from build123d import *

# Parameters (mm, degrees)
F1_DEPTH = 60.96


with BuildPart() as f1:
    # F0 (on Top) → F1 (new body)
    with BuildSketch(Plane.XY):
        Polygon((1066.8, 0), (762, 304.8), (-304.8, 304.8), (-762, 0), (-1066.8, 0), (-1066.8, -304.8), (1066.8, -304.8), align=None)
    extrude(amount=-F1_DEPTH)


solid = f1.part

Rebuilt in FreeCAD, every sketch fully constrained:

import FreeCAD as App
import Part
import Sketcher
from FreeCAD import Vector
Q = App.Units.Quantity

doc = App.newDocument("Part")
body = doc.addObject("PartDesign::Body", "Body")

# Sketch on XY plane
sketch1 = body.newObject("Sketcher::SketchObject", "Sketch")
sketch1.AttachmentSupport = (doc.getObject("XY_Plane"), [""])
sketch1.MapMode = "FlatFace"
sketch1.addGeometry(Part.LineSegment(Vector(1067, 0, 0), Vector(762, 305, 0)), False)
sketch1.addGeometry(Part.LineSegment(Vector(762, 305, 0), Vector(-305, 305, 0)), False)
sketch1.addGeometry(Part.LineSegment(Vector(-305, 305, 0), Vector(-762, 0, 0)), False)
sketch1.addGeometry(Part.LineSegment(Vector(-762, 0, 0), Vector(-1067, 0, 0)), False)
sketch1.addGeometry(Part.LineSegment(Vector(-1067, 0, 0), Vector(-1067, -305, 0)), False)
sketch1.addGeometry(Part.LineSegment(Vector(-1067, -305, 0), Vector(1067, -305, 0)), False)
sketch1.addGeometry(Part.LineSegment(Vector(1067, -305, 0), Vector(1067, 0, 0)), False)
sketch1.addConstraint(Sketcher.Constraint("Coincident", 0, 2, 1, 1))
sketch1.addConstraint(Sketcher.Constraint("Coincident", 1, 2, 2, 1))
sketch1.addConstraint(Sketcher.Constraint("Coincident", 2, 2, 3, 1))
sketch1.addConstraint(Sketcher.Constraint("Coincident", 3, 2, 4, 1))
sketch1.addConstraint(Sketcher.Constraint("Coincident", 4, 2, 5, 1))
sketch1.addConstraint(Sketcher.Constraint("Coincident", 5, 2, 6, 1))
sketch1.addConstraint(Sketcher.Constraint("Coincident", 6, 2, 0, 1))
sketch1.addConstraint(Sketcher.Constraint("Horizontal", 1))
sketch1.addConstraint(Sketcher.Constraint("Horizontal", 3))
sketch1.addConstraint(Sketcher.Constraint("Vertical", 4))
sketch1.addConstraint(Sketcher.Constraint("Horizontal", 5))
sketch1.addConstraint(Sketcher.Constraint("Vertical", 6))
sketch1.addConstraint(Sketcher.Constraint("Symmetric", 3, 2, 6, 2, -1, 1))
sketch1.addConstraint(Sketcher.Constraint("PointOnObject", 2, 2, -1))
sketch1.addConstraint(Sketcher.Constraint("Equal", 3, 4))
sketch1.addConstraint(Sketcher.Constraint("DistanceX", 1, 2, 1, 1, Q("42 in")))
sketch1.addConstraint(Sketcher.Constraint("DistanceX", 3, 2, 3, 1, Q("12 in")))
sketch1.addConstraint(Sketcher.Constraint("DistanceX", 5, 1, 5, 2, Q("84 in")))
sketch1.addConstraint(Sketcher.Constraint("DistanceX", -1, 1, 0, 2, Q("30 in")))
sketch1.addConstraint(Sketcher.Constraint("DistanceY", -1, 1, 0, 2, Q("12 in")))
pad1 = body.newObject("PartDesign::Pad", "Pad")
pad1.Profile = sketch1
pad1.Length = Q("2.4 in")
pad1.Reversed = True

doc.recompute()
